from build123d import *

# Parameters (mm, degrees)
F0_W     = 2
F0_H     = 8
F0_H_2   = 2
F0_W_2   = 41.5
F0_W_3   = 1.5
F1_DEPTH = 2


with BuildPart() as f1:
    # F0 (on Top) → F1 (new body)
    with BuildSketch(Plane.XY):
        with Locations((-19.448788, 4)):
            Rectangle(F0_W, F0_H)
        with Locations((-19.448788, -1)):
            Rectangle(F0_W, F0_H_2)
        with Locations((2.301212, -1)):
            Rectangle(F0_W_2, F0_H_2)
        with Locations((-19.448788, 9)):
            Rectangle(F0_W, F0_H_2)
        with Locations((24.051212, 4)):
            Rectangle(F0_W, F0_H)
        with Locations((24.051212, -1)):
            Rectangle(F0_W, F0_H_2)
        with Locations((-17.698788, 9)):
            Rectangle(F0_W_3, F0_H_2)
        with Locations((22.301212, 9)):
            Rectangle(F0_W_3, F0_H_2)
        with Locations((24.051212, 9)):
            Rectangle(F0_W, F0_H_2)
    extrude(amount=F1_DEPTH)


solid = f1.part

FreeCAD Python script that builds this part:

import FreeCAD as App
import Part
import Sketcher


def add_polygon(sketch, points):
    """Adds a closed chain of lines whose ends are joined by coincident constraints."""
    first, n = sketch.GeometryCount, len(points)
    for a, b in zip(points, points[1:] + points[:1]):
        sketch.addGeometry(Part.LineSegment(App.Vector(*a, 0), App.Vector(*b, 0)), False)
    for i in range(n):
        sketch.addConstraint(Sketcher.Constraint("Coincident", first + i, 2, first + (i + 1) % n, 1))

doc = App.newDocument("Part")
body = doc.addObject("PartDesign::Body", "Body")

sketch1 = doc.addObject("Sketcher::SketchObject", "Sketch")
body.addObject(sketch1)
sketch1.AttachmentSupport = (doc.XY_Plane, [""])
sketch1.MapMode = "FlatFace"
add_polygon(sketch1, [(-20.4, -2), (25.1, -2), (25.1, 10), (21.6, 10), (21.6, 8), (23.1, 8), (23.1, 0), (-18.4, 0), (-18.4, 8), (-16.9, 8), (-16.9, 10), (-20.4, 10)])
sketch1.addConstraint([
    Sketcher.Constraint("Horizontal", 0),
    Sketcher.Constraint("Vertical", 1),
    Sketcher.Constraint("Horizontal", 2),
    Sketcher.Constraint("Vertical", 3),
    Sketcher.Constraint("Horizontal", 4),
    Sketcher.Constraint("Vertical", 5),
    Sketcher.Constraint("Horizontal", 6),
    Sketcher.Constraint("Vertical", 7),
    Sketcher.Constraint("Horizontal", 8),
    Sketcher.Constraint("Vertical", 9),
    Sketcher.Constraint("Horizontal", 10),
    Sketcher.Constraint("Vertical", 11),
    Sketcher.Constraint("PointOnObject", 5, 2, -1),
    Sketcher.Constraint("Horizontal", 4, 2, 7, 2),
    Sketcher.Constraint("Horizontal", 2, 2, 9, 2),
    Sketcher.Constraint("Equal", 4, 8),
    Sketcher.Constraint("Equal", 2, 10),
    Sketcher.Constraint("DistanceY", 1, 1, 1, 2, 12.0),
    Sketcher.Constraint("DistanceY", 3, 2, 3, 1, 2.0),
    Sketcher.Constraint("DistanceY", 5, 2, 5, 1, 8.0),
    Sketcher.Constraint("DistanceX", 0, 1, 0, 2, 45.5),
    Sketcher.Constraint("DistanceX", 2, 2, 2, 1, 3.5),
    Sketcher.Constraint("DistanceX", 4, 1, 4, 2, 1.5),
    Sketcher.Constraint("DistanceX", -1, 1, 0, 2, 25.051212),
])
pad1 = doc.addObject("PartDesign::Pad", "Pad")
body.addObject(pad1)
pad1.Profile = sketch1
pad1.Length = 2

doc.recompute()
